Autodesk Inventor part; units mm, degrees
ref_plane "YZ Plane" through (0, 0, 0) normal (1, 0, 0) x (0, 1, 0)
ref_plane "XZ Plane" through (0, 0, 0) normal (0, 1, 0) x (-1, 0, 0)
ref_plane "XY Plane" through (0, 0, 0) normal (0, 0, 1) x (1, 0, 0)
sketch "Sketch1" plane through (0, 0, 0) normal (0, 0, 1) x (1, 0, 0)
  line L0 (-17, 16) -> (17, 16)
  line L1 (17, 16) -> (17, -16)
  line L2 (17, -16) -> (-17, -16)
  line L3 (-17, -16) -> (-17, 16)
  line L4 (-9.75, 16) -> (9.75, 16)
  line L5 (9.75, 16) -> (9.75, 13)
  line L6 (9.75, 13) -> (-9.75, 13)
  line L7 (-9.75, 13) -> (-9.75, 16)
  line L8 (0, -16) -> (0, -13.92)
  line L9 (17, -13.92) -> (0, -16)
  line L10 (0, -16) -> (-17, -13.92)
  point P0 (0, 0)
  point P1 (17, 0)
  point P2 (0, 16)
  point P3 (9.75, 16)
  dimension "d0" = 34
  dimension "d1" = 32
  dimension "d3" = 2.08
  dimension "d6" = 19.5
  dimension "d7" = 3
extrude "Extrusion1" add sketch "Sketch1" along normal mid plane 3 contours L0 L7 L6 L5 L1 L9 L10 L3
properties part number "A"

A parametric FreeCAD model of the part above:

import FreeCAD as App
import Part
import Sketcher
from FreeCAD import Vector
Q = App.Units.Quantity

doc = App.newDocument("Part")
body = doc.addObject("PartDesign::Body", "Body")

# Sketch on XY plane
sketch1 = body.newObject("Sketcher::SketchObject", "Sketch")
sketch1.AttachmentSupport = (doc.getObject("XY_Plane"), [""])
sketch1.MapMode = "FlatFace"
sketch1.addGeometry([
    Part.LineSegment(Vector(-9.75, 16, 0), Vector(-17, 16, 0)),  # 0
    Part.LineSegment(Vector(-17, 16, 0), Vector(-17, -13.92, 0)),  # 1
    Part.LineSegment(Vector(-17, -13.92, 0), Vector(0, -16, 0)),  # 2
    Part.LineSegment(Vector(0, -16, 0), Vector(17, -13.92, 0)),  # 3
    Part.LineSegment(Vector(17, -13.92, 0), Vector(17, 16, 0)),  # 4
    Part.LineSegment(Vector(17, 16, 0), Vector(9.75, 16, 0)),  # 5
    Part.LineSegment(Vector(9.75, 16, 0), Vector(9.75, 13, 0)),  # 6
    Part.LineSegment(Vector(9.75, 13, 0), Vector(-9.75, 13, 0)),  # 7
    Part.LineSegment(Vector(-9.75, 13, 0), Vector(-9.75, 16, 0)),  # 8
], False)
sketch1.addConstraint([
    Sketcher.Constraint("Coincident", 0, 2, 1, 1),
    Sketcher.Constraint("Coincident", 1, 2, 2, 1),
    Sketcher.Constraint("Coincident", 2, 2, 3, 1),
    Sketcher.Constraint("Coincident", 3, 2, 4, 1),
    Sketcher.Constraint("Coincident", 4, 2, 5, 1),
    Sketcher.Constraint("Coincident", 5, 2, 6, 1),
    Sketcher.Constraint("Coincident", 6, 2, 7, 1),
    Sketcher.Constraint("Coincident", 7, 2, 8, 1),
    Sketcher.Constraint("Coincident", 8, 2, 0, 1),
    Sketcher.Constraint("Horizontal", 0),
    Sketcher.Constraint("Vertical", 1),
    Sketcher.Constraint("Vertical", 4),
    Sketcher.Constraint("Horizontal", 5),
    Sketcher.Constraint("Vertical", 6),
    Sketcher.Constraint("Horizontal", 7),
    Sketcher.Constraint("Vertical", 8),
    Sketcher.Constraint("Symmetric", 1, 2, 3, 2, -2),
    Sketcher.Constraint("Symmetric", 5, 2, 8, 2, -2),
    Sketcher.Constraint("PointOnObject", 2, 2, -2),
    Sketcher.Constraint("DistanceY", 6, 2, 6, 1, Q("3 mm")),
    Sketcher.Constraint("DistanceX", 7, 2, 7, 1, Q("19.5 mm")),
    Sketcher.Constraint("DistanceY", 2, 2, 0, 2, Q("32 mm")),
    Sketcher.Constraint("DistanceX", 1, 2, 3, 2, Q("34 mm")),
    Sketcher.Constraint("DistanceY", 2, 2, 1, 2, Q("2.08 mm")),
    Sketcher.Constraint("DistanceY", -1, 1, 0, 2, Q("16 mm")),
])
pad1 = body.newObject("PartDesign::Pad", "Pad")
pad1.Profile = sketch1
pad1.Length = 3
pad1.Midplane = True

doc.recompute()
